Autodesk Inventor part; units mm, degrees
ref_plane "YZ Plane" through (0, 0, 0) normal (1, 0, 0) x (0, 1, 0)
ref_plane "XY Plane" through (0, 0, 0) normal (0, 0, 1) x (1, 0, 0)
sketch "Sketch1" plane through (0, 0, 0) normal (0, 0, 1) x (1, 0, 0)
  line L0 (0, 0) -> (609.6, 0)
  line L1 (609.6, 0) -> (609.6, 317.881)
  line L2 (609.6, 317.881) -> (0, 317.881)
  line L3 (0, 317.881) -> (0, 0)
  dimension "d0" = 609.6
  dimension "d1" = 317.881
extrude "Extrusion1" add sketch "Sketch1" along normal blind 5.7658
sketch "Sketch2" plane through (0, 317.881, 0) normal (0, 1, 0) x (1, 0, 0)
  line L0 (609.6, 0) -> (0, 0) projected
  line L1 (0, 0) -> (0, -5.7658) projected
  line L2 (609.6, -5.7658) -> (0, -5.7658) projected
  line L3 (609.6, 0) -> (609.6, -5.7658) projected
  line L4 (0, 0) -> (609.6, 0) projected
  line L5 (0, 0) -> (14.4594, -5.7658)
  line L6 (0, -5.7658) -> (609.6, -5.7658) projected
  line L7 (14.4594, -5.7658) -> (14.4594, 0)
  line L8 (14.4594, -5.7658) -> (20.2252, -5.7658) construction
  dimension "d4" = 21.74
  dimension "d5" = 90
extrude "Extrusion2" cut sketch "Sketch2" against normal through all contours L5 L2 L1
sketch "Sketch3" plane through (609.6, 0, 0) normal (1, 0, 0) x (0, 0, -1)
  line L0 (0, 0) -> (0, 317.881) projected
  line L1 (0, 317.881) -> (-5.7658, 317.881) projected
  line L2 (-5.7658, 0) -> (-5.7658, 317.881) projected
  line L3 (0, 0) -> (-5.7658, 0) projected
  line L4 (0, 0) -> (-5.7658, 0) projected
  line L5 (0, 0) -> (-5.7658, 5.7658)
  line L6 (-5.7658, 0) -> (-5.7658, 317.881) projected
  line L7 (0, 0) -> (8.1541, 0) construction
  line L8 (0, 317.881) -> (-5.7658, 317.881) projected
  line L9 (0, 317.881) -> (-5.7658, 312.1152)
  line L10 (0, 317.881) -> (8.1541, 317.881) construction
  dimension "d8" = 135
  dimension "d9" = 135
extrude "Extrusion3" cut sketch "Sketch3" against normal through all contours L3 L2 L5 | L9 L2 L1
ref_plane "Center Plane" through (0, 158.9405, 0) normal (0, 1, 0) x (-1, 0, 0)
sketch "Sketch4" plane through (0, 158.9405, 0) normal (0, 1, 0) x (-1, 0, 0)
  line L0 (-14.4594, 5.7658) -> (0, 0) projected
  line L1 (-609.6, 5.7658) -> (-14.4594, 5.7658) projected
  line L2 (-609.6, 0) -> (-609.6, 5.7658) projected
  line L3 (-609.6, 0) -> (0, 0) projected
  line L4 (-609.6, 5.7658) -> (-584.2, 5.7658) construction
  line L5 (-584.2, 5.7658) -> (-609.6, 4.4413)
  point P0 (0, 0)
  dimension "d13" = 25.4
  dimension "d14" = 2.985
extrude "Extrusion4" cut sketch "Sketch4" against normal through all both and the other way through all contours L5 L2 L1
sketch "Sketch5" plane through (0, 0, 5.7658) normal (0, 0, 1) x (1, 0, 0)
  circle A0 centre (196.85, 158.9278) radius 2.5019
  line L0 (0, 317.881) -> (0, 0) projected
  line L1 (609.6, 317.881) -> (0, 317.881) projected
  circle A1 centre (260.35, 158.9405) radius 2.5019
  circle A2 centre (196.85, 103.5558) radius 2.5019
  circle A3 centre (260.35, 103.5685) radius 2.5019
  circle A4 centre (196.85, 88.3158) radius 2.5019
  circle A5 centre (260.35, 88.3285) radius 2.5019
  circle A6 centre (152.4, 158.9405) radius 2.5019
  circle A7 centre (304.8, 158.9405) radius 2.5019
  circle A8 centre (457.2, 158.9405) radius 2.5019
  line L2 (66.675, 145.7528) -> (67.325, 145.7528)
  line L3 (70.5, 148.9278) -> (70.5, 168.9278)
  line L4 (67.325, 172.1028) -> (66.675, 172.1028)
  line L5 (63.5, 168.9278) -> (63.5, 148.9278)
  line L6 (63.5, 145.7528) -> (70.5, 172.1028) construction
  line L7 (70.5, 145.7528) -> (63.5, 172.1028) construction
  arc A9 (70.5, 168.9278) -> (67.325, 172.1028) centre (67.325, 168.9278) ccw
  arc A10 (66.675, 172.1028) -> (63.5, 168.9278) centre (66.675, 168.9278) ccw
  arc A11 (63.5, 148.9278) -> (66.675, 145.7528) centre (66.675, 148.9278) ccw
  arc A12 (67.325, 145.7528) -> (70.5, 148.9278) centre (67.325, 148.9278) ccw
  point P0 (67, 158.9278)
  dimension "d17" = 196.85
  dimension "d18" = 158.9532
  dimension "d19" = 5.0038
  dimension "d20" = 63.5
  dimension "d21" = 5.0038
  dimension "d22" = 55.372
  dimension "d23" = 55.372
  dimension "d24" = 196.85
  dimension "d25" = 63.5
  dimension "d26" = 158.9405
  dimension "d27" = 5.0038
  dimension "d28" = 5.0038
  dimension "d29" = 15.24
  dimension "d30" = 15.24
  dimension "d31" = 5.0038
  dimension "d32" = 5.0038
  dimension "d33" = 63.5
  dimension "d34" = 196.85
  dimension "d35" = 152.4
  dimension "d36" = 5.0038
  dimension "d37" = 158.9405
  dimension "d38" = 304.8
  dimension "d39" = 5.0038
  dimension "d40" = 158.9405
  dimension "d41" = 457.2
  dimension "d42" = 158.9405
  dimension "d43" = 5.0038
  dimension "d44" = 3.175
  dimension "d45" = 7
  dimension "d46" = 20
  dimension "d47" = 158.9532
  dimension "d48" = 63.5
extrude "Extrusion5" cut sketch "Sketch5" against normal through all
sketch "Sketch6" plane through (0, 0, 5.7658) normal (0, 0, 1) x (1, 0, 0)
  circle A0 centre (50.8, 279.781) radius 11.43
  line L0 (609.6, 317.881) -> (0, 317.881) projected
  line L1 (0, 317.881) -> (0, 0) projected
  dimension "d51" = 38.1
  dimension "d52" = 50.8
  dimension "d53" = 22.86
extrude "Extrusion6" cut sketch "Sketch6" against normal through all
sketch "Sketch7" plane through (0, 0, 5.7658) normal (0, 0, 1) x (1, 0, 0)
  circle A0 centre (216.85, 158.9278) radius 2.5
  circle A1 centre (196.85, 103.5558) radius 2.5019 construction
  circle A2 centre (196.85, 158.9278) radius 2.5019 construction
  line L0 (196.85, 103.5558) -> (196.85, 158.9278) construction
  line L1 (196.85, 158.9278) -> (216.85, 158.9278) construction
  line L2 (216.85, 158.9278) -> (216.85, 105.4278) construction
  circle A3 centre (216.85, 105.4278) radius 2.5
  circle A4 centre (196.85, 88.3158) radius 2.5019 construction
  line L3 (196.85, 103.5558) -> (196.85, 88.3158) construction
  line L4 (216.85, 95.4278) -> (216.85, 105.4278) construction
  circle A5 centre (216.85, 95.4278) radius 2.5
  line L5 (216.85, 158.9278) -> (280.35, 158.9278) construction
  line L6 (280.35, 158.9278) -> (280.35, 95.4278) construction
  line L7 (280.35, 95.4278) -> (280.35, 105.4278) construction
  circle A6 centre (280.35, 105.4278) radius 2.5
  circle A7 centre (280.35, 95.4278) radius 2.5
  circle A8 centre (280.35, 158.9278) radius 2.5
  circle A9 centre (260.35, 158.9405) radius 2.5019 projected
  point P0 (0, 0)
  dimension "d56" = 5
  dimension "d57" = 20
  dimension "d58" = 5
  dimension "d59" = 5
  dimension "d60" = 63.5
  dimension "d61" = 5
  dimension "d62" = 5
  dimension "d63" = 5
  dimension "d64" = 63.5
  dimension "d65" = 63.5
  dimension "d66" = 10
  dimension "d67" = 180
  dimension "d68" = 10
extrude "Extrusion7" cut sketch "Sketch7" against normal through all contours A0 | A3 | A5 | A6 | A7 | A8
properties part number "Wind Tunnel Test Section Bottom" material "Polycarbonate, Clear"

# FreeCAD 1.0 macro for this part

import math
import FreeCAD as App
import Part
import Sketcher
Q = App.Units.Quantity


def add_polygon(sketch, points):
    """Adds a closed chain of lines whose ends are joined by coincident constraints."""
    first, n = sketch.GeometryCount, len(points)
    for a, b in zip(points, points[1:] + points[:1]):
        sketch.addGeometry(Part.LineSegment(App.Vector(*a, 0), App.Vector(*b, 0)), False)
    for i in range(n):
        sketch.addConstraint(Sketcher.Constraint("Coincident", first + i, 2, first + (i + 1) % n, 1))

doc = App.newDocument("Part")
body = doc.addObject("PartDesign::Body", "Body")

sketch1 = body.newObject("Sketcher::SketchObject", "Sketch")
sketch1.AttachmentSupport = (doc.getObject("XY_Plane"), [""])
sketch1.MapMode = "FlatFace"
add_polygon(sketch1, [(0, 318), (0, 0), (610, 0), (610, 318)])
sketch1.addConstraint([
    Sketcher.Constraint("Vertical", 0),
    Sketcher.Constraint("Horizontal", 1),
    Sketcher.Constraint("Vertical", 2),
    Sketcher.Constraint("Horizontal", 3),
    Sketcher.Constraint("Coincident", 0, 2, -1, 1),
    Sketcher.Constraint("DistanceX", 1, 1, 1, 2, Q("24 in")),
    Sketcher.Constraint("DistanceY", 0, 2, 0, 1, Q("12.515 in")),
])
pad1 = body.newObject("PartDesign::Pad", "Pad")
pad1.Profile = sketch1
pad1.Length = Q("0.227 in")

sketch2 = body.newObject("Sketcher::SketchObject", "Sketch001")
sketch2.AttachmentSupport = (doc.getObject("XZ_Plane"), [""])
sketch2.MapMode = "FlatFace"
sketch2.AttachmentOffset = App.Placement(App.Vector(0, 0, -12.515 * 25.4), App.Rotation())
add_polygon(sketch2, [(14, 6), (0, 0), (0, 6)])
sketch2.addConstraint([
    Sketcher.Constraint("Vertical", 1),
    Sketcher.Constraint("Horizontal", 2),
    Sketcher.Constraint("Coincident", 0, 2, -1, 1),
    Sketcher.Constraint("DistanceY", 1, 1, 1, 2, Q("0.227 in")),
    Sketcher.Constraint("Angle", 0, Q("-158.26 deg")),
])
pocket1 = body.newObject("PartDesign::Pocket", "Pocket")
pocket1.Profile = sketch2
pocket1.Type = "ThroughAll"
pocket1.Reversed = True

sketch3 = body.newObject("Sketcher::SketchObject", "Sketch002")
sketch3.AttachmentSupport = (doc.getObject("YZ_Plane"), [""])
sketch3.MapMode = "FlatFace"
sketch3.AttachmentOffset = App.Placement(App.Vector(0, 0, 24 * 25.4), App.Rotation())
add_polygon(sketch3, [(0, 6), (0, 0), (6, 6)])
add_polygon(sketch3, [(312, 6), (318, 0), (318, 6)])
sketch3.addConstraint([
    Sketcher.Constraint("Vertical", 0),
    Sketcher.Constraint("Horizontal", 2),
    Sketcher.Constraint("Vertical", 4),
    Sketcher.Constraint("Horizontal", 5),
    Sketcher.Constraint("Coincident", 0, 2, -1, 1),
    Sketcher.Constraint("PointOnObject", 3, 2, -1),
    Sketcher.Constraint("Perpendicular", 1, 3),
    Sketcher.Constraint("Horizontal", 2, 2, 4, 2),
    Sketcher.Constraint("Equal", 2, 5),
    Sketcher.Constraint("DistanceX", 2, 2, 2, 1, Q("0.227 in")),
    Sketcher.Constraint("DistanceX", -1, 1, 3, 2, Q("12.515 in")),
])
pocket2 = body.newObject("PartDesign::Pocket", "Pocket001")
pocket2.Profile = sketch3
pocket2.Type = "ThroughAll"

sketch4 = body.newObject("Sketcher::SketchObject", "Sketch003")
sketch4.AttachmentSupport = (doc.getObject("XZ_Plane"), [""])
sketch4.MapMode = "FlatFace"
sketch4.AttachmentOffset = App.Placement(App.Vector(0, 0, -6.2575 * 25.4), App.Rotation())
add_polygon(sketch4, [(609.6, 4.4), (584.2, 5.8), (609.6, 5.8)])
sketch4.addConstraint([
    Sketcher.Constraint("Horizontal", 1),
    Sketcher.Constraint("Vertical", 2),
    Sketcher.Constraint("DistanceX", 1, 1, 1, 2, Q("1 in")),
    Sketcher.Constraint("DistanceX", -1, 1, 0, 2, Q("23 in")),
    Sketcher.Constraint("DistanceY", -1, 1, 0, 2, Q("0.227 in")),
    Sketcher.Constraint("DistanceY", 2, 2, 2, 1, Q("1.3245 mm")),
])
pocket3 = body.newObject("PartDesign::Pocket", "Pocket002")
pocket3.Profile = sketch4
pocket3.Type = "ThroughAll"
pocket3.Midplane = True

sketch5 = body.newObject("Sketcher::SketchObject", "Sketch004")
sketch5.AttachmentSupport = (doc.getObject("XY_Plane"), [""])
sketch5.MapMode = "FlatFace"
sketch5.AttachmentOffset = App.Placement(App.Vector(0, 0, 0.227 * 25.4), App.Rotation())
sketch5.addGeometry([
    Part.Circle(App.Vector(196.8, 158.9, 0), App.Vector(0, 0, 1), 2.5),
    Part.Circle(App.Vector(260.4, 158.9, 0), App.Vector(0, 0, 1), 2.5),
    Part.Circle(App.Vector(196.8, 103.6, 0), App.Vector(0, 0, 1), 2.5),
    Part.Circle(App.Vector(260.4, 103.6, 0), App.Vector(0, 0, 1), 2.5),
    Part.Circle(App.Vector(196.8, 88.3, 0), App.Vector(0, 0, 1), 2.5),
    Part.Circle(App.Vector(260.4, 88.3, 0), App.Vector(0, 0, 1), 2.5),
    Part.Circle(App.Vector(152.4, 158.9, 0), App.Vector(0, 0, 1), 2.5),
    Part.Circle(App.Vector(304.8, 158.9, 0), App.Vector(0, 0, 1), 2.5),
    Part.Circle(App.Vector(457.2, 158.9, 0), App.Vector(0, 0, 1), 2.5),
    Part.ArcOfCircle(Part.Circle(App.Vector(66.7, 148.9, 0), App.Vector(0, 0, 1), 3.2), math.radians(180), math.radians(270)),
    Part.LineSegment(App.Vector(66.7, 145.8, 0), App.Vector(67.3, 145.8, 0)),
    Part.ArcOfCircle(Part.Circle(App.Vector(67.3, 148.9, 0), App.Vector(0, 0, 1), 3.2), math.radians(-90), math.radians(0)),
    Part.LineSegment(App.Vector(70.5, 148.9, 0), App.Vector(70.5, 168.9, 0)),
    Part.ArcOfCircle(Part.Circle(App.Vector(67.3, 168.9, 0), App.Vector(0, 0, 1), 3.2), math.radians(0), math.radians(90)),
    Part.LineSegment(App.Vector(67.3, 172.1, 0), App.Vector(66.7, 172.1, 0)),
    Part.ArcOfCircle(Part.Circle(App.Vector(66.7, 168.9, 0), App.Vector(0, 0, 1), 3.2), math.radians(90), math.radians(180)),
    Part.LineSegment(App.Vector(63.5, 168.9, 0), App.Vector(63.5, 148.9, 0)),
], False)
sketch5.addConstraint([
    Sketcher.Constraint("Tangent", 9, 2, 10, 1),
    Sketcher.Constraint("Tangent", 10, 2, 11, 1),
    Sketcher.Constraint("Tangent", 11, 2, 12, 1),
    Sketcher.Constraint("Tangent", 12, 2, 13, 1),
    Sketcher.Constraint("Tangent", 13, 2, 14, 1),
    Sketcher.Constraint("Tangent", 14, 2, 15, 1),
    Sketcher.Constraint("Tangent", 15, 2, 16, 1),
    Sketcher.Constraint("Tangent", 16, 2, 9, 1),
    Sketcher.Constraint("Horizontal", 10),
    Sketcher.Constraint("Vertical", 12),
    Sketcher.Constraint("Horizontal", 14),
    Sketcher.Constraint("Vertical", 16),
    Sketcher.Constraint("Equal", 0, 1),
    Sketcher.Constraint("Equal", 1, 2),
    Sketcher.Constraint("Equal", 2, 3),
    Sketcher.Constraint("Equal", 3, 4),
    Sketcher.Constraint("Equal", 4, 5),
    Sketcher.Constraint("Equal", 5, 6),
    Sketcher.Constraint("Equal", 6, 7),
    Sketcher.Constraint("Equal", 7, 8),
    Sketcher.Constraint("Equal", 9, 11),
    Sketcher.Constraint("Equal", 11, 13),
    Sketcher.Constraint("Equal", 13, 15),
    Sketcher.Constraint("Horizontal", 1, 3, 6, 3),
    Sketcher.Constraint("Horizontal", 6, 3, 7, 3),
    Sketcher.Constraint("Horizontal", 7, 3, 8, 3),
    Sketcher.Constraint("Vertical", 0, 3, 2, 3),
    Sketcher.Constraint("Vertical", 1, 3, 3, 3),
    Sketcher.Constraint("Vertical", 2, 3, 4, 3),
    Sketcher.Constraint("Vertical", 3, 3, 5, 3),
    Sketcher.Constraint("Diameter", 0, Q("0.197 in")),
    Sketcher.Constraint("DistanceX", -1, 1, 6, 3, Q("6 in")),
    Sketcher.Constraint("DistanceX", -1, 1, 7, 3, Q("12 in")),
    Sketcher.Constraint("DistanceX", -1, 1, 8, 3, Q("18 in")),
    Sketcher.Constraint("Radius", 9, Q("0.125 in")),
    Sketcher.Constraint("DistanceX", -1, 1, 15, 2, Q("2.5 in")),
    Sketcher.Constraint("DistanceX", 0, 3, 1, 3, Q("2.5 in")),
    Sketcher.Constraint("DistanceY", 4, 3, 2, 3, Q("0.6 in")),
    Sketcher.Constraint("DistanceY", 5, 3, 3, 3, Q("0.6 in")),
    Sketcher.Constraint("DistanceX", -1, 1, 0, 3, Q("7.75 in")),
    Sketcher.Constraint("DistanceY", 2, 3, 0, 3, Q("2.18 in")),
    Sketcher.Constraint("DistanceY", 3, 3, 1, 3, Q("2.18 in")),
    Sketcher.Constraint("DistanceY", 12, 1, 12, 2, Q("0.7874 in")),
    Sketcher.Constraint("DistanceY", -1, 1, 1, 3, Q("6.2575 in")),
    Sketcher.Constraint("DistanceX", 15, 2, 12, 2, Q("0.2756 in")),
    Sketcher.Constraint("DistanceY", -1, 1, 0, 3, Q("6.257 in")),
    Sketcher.Constraint("DistanceY", -1, 1, 9, 3, Q("5.8633 in")),
])
pocket4 = body.newObject("PartDesign::Pocket", "Pocket003")
pocket4.Profile = sketch5
pocket4.Type = "ThroughAll"

sketch6 = body.newObject("Sketcher::SketchObject", "Sketch005")
sketch6.AttachmentSupport = (doc.getObject("XY_Plane"), [""])
sketch6.MapMode = "FlatFace"
sketch6.AttachmentOffset = App.Placement(App.Vector(0, 0, 0.227 * 25.4), App.Rotation())
sketch6.addGeometry(Part.Circle(App.Vector(51, 280, 0), App.Vector(0, 0, 1), 11), False)
sketch6.addConstraint([
    Sketcher.Constraint("Diameter", 0, Q("0.9 in")),
    Sketcher.Constraint("DistanceX", -1, 1, 0, 3, Q("2 in")),
    Sketcher.Constraint("DistanceY", -1, 1, 0, 3, Q("11.015 in")),
])
pocket5 = body.newObject("PartDesign::Pocket", "Pocket004")
pocket5.Profile = sketch6
pocket5.Type = "ThroughAll"

sketch7 = body.newObject("Sketcher::SketchObject", "Sketch006")
sketch7.AttachmentSupport = (doc.getObject("XY_Plane"), [""])
sketch7.MapMode = "FlatFace"
sketch7.AttachmentOffset = App.Placement(App.Vector(0, 0, 0.227 * 25.4), App.Rotation())
sketch7.addGeometry([
    Part.Circle(App.Vector(216.8, 158.9, 0), App.Vector(0, 0, 1), 2.5),
    Part.Circle(App.Vector(216.8, 105.4, 0), App.Vector(0, 0, 1), 2.5),
    Part.Circle(App.Vector(216.8, 95.4, 0), App.Vector(0, 0, 1), 2.5),
    Part.Circle(App.Vector(280.4, 105.4, 0), App.Vector(0, 0, 1), 2.5),
    Part.Circle(App.Vector(280.4, 95.4, 0), App.Vector(0, 0, 1), 2.5),
    Part.Circle(App.Vector(280.4, 158.9, 0), App.Vector(0, 0, 1), 2.5),
], False)
sketch7.addConstraint([
    Sketcher.Constraint("Equal", 0, 1),
    Sketcher.Constraint("Equal", 1, 2),
    Sketcher.Constraint("Equal", 2, 3),
    Sketcher.Constraint("Equal", 3, 4),
    Sketcher.Constraint("Equal", 4, 5),
    Sketcher.Constraint("Horizontal", 1, 3, 3, 3),
    Sketcher.Constraint("Horizontal", 2, 3, 4, 3),
    Sketcher.Constraint("Horizontal", 0, 3, 5, 3),
    Sketcher.Constraint("Vertical", 0, 3, 1, 3),
    Sketcher.Constraint("Vertical", 1, 3, 2, 3),
    Sketcher.Constraint("Vertical", 3, 3, 4, 3),
    Sketcher.Constraint("Vertical", 4, 3, 5, 3),
    Sketcher.Constraint("DistanceY", 2, 3, 0, 3, Q("2.5 in")),
    Sketcher.Constraint("DistanceX", 1, 3, 3, 3, Q("2.5 in")),
    Sketcher.Constraint("Diameter", 0, Q("5 mm")),
    Sketcher.Constraint("DistanceY", 2, 3, 1, 3, Q("0.3937 in")),
    Sketcher.Constraint("DistanceY", -1, 1, 0, 3, Q("6.257 in")),
    Sketcher.Constraint("DistanceX", -1, 1, 0, 3, Q("8.5374 in")),
])
pocket6 = body.newObject("PartDesign::Pocket", "Pocket005")
pocket6.Profile = sketch7
pocket6.Type = "ThroughAll"

doc.recompute()
